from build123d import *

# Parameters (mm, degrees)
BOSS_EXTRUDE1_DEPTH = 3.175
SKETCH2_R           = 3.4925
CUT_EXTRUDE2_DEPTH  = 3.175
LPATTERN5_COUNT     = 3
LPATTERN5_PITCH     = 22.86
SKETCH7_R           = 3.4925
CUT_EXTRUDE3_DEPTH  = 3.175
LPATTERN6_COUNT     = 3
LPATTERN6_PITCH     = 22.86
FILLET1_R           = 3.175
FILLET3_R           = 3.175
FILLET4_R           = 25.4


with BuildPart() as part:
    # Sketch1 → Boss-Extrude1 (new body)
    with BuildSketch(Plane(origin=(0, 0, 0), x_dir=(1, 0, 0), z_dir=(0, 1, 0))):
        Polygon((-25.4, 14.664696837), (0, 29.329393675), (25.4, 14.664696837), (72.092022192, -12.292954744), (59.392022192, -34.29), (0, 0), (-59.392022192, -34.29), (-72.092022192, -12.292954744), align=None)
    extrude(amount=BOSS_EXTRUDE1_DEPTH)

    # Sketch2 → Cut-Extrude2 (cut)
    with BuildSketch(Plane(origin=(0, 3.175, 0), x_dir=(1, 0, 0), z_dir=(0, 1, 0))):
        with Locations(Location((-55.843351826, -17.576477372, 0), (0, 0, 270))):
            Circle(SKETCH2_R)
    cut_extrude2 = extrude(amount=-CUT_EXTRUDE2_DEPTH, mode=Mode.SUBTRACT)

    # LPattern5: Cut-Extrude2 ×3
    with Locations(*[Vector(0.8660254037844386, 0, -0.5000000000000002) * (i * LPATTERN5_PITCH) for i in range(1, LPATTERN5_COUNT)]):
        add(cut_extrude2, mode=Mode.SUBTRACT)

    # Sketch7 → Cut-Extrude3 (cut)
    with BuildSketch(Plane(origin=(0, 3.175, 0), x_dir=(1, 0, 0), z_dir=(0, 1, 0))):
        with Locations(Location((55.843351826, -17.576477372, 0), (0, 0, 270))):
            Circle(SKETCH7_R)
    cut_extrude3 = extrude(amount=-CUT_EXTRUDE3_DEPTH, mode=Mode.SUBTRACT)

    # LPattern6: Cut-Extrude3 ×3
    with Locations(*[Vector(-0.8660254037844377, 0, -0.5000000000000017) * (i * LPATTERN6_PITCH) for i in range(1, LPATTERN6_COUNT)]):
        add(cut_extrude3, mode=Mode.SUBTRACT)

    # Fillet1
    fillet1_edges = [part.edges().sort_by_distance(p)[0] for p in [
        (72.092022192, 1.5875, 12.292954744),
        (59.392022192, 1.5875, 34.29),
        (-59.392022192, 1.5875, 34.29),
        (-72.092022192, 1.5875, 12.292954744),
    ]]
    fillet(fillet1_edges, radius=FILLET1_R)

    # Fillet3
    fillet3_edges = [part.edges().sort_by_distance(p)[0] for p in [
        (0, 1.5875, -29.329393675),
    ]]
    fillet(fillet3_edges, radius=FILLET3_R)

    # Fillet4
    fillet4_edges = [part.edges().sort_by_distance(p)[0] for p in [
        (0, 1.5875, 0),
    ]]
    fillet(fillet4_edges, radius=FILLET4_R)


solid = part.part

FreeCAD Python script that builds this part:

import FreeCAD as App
import Part
import Sketcher
from FreeCAD import Vector
Q = App.Units.Quantity


def edges_at(feature, points):
    """Names of the edges that pass closest to the given points."""
    edges = feature.Shape.Edges
    near = lambda p: min(range(len(edges)), key=lambda i: edges[i].distToShape(Part.Vertex(*p))[0])
    return sorted({f"Edge{near(p) + 1}" for p in points})

doc = App.newDocument("Part")
body = doc.addObject("PartDesign::Body", "Body")

sketch1 = body.newObject("Sketcher::SketchObject", "Sketch")
sketch1.AttachmentSupport = (doc.getObject("XZ_Plane"), [""])
sketch1.MapMode = "FlatFace"
sketch1.addGeometry(Part.LineSegment(Vector(0, -29, 0), Vector(-25, -15, 0)), False)
sketch1.addGeometry(Part.LineSegment(Vector(-25, -15, 0), Vector(-72, 12, 0)), False)
sketch1.addGeometry(Part.LineSegment(Vector(-72, 12, 0), Vector(-59, 34, 0)), False)
sketch1.addGeometry(Part.LineSegment(Vector(-59, 34, 0), Vector(0, 0, 0)), False)
sketch1.addGeometry(Part.LineSegment(Vector(0, 0, 0), Vector(59, 34, 0)), False)
sketch1.addGeometry(Part.LineSegment(Vector(59, 34, 0), Vector(72, 12, 0)), False)
sketch1.addGeometry(Part.LineSegment(Vector(72, 12, 0), Vector(25, -15, 0)), False)
sketch1.addGeometry(Part.LineSegment(Vector(25, -15, 0), Vector(0, -29, 0)), False)
sketch1.addConstraint(Sketcher.Constraint("Coincident", 0, 2, 1, 1))
sketch1.addConstraint(Sketcher.Constraint("Coincident", 1, 2, 2, 1))
sketch1.addConstraint(Sketcher.Constraint("Coincident", 2, 2, 3, 1))
sketch1.addConstraint(Sketcher.Constraint("Coincident", 3, 2, 4, 1))
sketch1.addConstraint(Sketcher.Constraint("Coincident", 4, 2, 5, 1))
sketch1.addConstraint(Sketcher.Constraint("Coincident", 5, 2, 6, 1))
sketch1.addConstraint(Sketcher.Constraint("Coincident", 6, 2, 7, 1))
sketch1.addConstraint(Sketcher.Constraint("Coincident", 7, 2, 0, 1))
sketch1.addConstraint(Sketcher.Constraint("Coincident", 3, 2, -1, 1))
sketch1.addConstraint(Sketcher.Constraint("Symmetric", 2, 2, 4, 2, -2))
sketch1.addConstraint(Sketcher.Constraint("Symmetric", 1, 2, 5, 2, -2))
sketch1.addConstraint(Sketcher.Constraint("Symmetric", 0, 2, 6, 2, -2))
sketch1.addConstraint(Sketcher.Constraint("PointOnObject", 7, 2, -2))
sketch1.addConstraint(Sketcher.Constraint("Parallel", 0, 1))
sketch1.addConstraint(Sketcher.Constraint("Perpendicular", 1, 2))
sketch1.addConstraint(Sketcher.Constraint("Perpendicular", 2, 3))
sketch1.addConstraint(Sketcher.Constraint("Distance", 2, Q("1 in")))
sketch1.addConstraint(Sketcher.Constraint("DistanceX", 0, 2, -1, 1, Q("1 in")))
sketch1.addConstraint(Sketcher.Constraint("Angle", 0, Q("150 deg")))
sketch1.addConstraint(Sketcher.Constraint("Distance", 3, Q("2.7 in")))
pad1 = body.newObject("PartDesign::Pad", "Pad")
pad1.Profile = sketch1
pad1.Length = Q("0.125 in")
pad1.Reversed = True

sketch2 = body.newObject("Sketcher::SketchObject", "Sketch001")
sketch2.AttachmentSupport = (doc.getObject("XZ_Plane"), [""])
sketch2.MapMode = "FlatFace"
sketch2.AttachmentOffset = App.Placement(Vector(0, 0, -0.125 * 25.4), App.Rotation())
sketch2.addGeometry(Part.Circle(Vector(-55.8, 17.6, 0), Vector(0, 0, 1), 3.5), False)
sketch2.addConstraint(Sketcher.Constraint("Diameter", 0, Q("0.275 in")))
sketch2.addConstraint(Sketcher.Constraint("DistanceX", 0, 3, -1, 1, 55.843352))
sketch2.addConstraint(Sketcher.Constraint("DistanceY", -1, 1, 0, 3, 17.576477))
pocket1 = body.newObject("PartDesign::Pocket", "Pocket")
pocket1.Profile = sketch2
pocket1.Length = Q("0.125 in")
pocket1.Reversed = True
doc.recompute()

datumline = body.newObject("PartDesign::Line", "DatumLine")
datumline.Placement = App.Placement(Vector(0, 0, 0), App.Rotation(Vector(0, 0, 1), Vector(0.866025404, 0, -0.5)))
linearpattern = body.newObject("PartDesign::LinearPattern", "LinearPattern")
linearpattern.Originals = [pocket1]
linearpattern.Direction = (datumline, [""])
linearpattern.Mode = "offset"
linearpattern.Offset = Q("0.9 in")
linearpattern.Occurrences = 3
body.Tip = linearpattern

sketch3 = body.newObject("Sketcher::SketchObject", "Sketch002")
sketch3.AttachmentSupport = (doc.getObject("XZ_Plane"), [""])
sketch3.MapMode = "FlatFace"
sketch3.AttachmentOffset = App.Placement(Vector(0, 0, -0.125 * 25.4), App.Rotation())
sketch3.addGeometry(Part.Circle(Vector(55.8, 17.6, 0), Vector(0, 0, 1), 3.5), False)
sketch3.addConstraint(Sketcher.Constraint("Diameter", 0, Q("0.275 in")))
sketch3.addConstraint(Sketcher.Constraint("DistanceX", -1, 1, 0, 3, 55.843352))
sketch3.addConstraint(Sketcher.Constraint("DistanceY", -1, 1, 0, 3, 17.576477))
pocket2 = body.newObject("PartDesign::Pocket", "Pocket001")
pocket2.Profile = sketch3
pocket2.Length = Q("0.125 in")
pocket2.Reversed = True
doc.recompute()

datumline2 = body.newObject("PartDesign::Line", "DatumLine001")
datumline2.Placement = App.Placement(Vector(0, 0, 0), App.Rotation(Vector(0, 0, 1), Vector(-0.866025404, 0, -0.5)))
linearpattern2 = body.newObject("PartDesign::LinearPattern", "LinearPattern001")
linearpattern2.Originals = [pocket2]
linearpattern2.Direction = (datumline2, [""])
linearpattern2.Mode = "offset"
linearpattern2.Offset = Q("0.9 in")
linearpattern2.Occurrences = 3
body.Tip = linearpattern2
doc.recompute()

fillet = body.newObject("PartDesign::Fillet", "Fillet")
fillet.Base = (linearpattern2, edges_at(linearpattern2, [
    (72.092, 1.587, 12.293),
    (59.392, 1.587, 34.29),
    (-59.392, 1.587, 34.29),
    (-72.092, 1.587, 12.293),
]))
fillet.Radius = Q("0.125 in")
doc.recompute()

fillet2 = body.newObject("PartDesign::Fillet", "Fillet001")
fillet2.Base = (fillet, edges_at(fillet, [(0, 1.587, -29.329)]))
fillet2.Radius = Q("0.125 in")
doc.recompute()

fillet3 = body.newObject("PartDesign::Fillet", "Fillet002")
fillet3.Base = (fillet2, edges_at(fillet2, [(0, 1.587, 0)]))
fillet3.Radius = Q("1 in")

doc.recompute()
